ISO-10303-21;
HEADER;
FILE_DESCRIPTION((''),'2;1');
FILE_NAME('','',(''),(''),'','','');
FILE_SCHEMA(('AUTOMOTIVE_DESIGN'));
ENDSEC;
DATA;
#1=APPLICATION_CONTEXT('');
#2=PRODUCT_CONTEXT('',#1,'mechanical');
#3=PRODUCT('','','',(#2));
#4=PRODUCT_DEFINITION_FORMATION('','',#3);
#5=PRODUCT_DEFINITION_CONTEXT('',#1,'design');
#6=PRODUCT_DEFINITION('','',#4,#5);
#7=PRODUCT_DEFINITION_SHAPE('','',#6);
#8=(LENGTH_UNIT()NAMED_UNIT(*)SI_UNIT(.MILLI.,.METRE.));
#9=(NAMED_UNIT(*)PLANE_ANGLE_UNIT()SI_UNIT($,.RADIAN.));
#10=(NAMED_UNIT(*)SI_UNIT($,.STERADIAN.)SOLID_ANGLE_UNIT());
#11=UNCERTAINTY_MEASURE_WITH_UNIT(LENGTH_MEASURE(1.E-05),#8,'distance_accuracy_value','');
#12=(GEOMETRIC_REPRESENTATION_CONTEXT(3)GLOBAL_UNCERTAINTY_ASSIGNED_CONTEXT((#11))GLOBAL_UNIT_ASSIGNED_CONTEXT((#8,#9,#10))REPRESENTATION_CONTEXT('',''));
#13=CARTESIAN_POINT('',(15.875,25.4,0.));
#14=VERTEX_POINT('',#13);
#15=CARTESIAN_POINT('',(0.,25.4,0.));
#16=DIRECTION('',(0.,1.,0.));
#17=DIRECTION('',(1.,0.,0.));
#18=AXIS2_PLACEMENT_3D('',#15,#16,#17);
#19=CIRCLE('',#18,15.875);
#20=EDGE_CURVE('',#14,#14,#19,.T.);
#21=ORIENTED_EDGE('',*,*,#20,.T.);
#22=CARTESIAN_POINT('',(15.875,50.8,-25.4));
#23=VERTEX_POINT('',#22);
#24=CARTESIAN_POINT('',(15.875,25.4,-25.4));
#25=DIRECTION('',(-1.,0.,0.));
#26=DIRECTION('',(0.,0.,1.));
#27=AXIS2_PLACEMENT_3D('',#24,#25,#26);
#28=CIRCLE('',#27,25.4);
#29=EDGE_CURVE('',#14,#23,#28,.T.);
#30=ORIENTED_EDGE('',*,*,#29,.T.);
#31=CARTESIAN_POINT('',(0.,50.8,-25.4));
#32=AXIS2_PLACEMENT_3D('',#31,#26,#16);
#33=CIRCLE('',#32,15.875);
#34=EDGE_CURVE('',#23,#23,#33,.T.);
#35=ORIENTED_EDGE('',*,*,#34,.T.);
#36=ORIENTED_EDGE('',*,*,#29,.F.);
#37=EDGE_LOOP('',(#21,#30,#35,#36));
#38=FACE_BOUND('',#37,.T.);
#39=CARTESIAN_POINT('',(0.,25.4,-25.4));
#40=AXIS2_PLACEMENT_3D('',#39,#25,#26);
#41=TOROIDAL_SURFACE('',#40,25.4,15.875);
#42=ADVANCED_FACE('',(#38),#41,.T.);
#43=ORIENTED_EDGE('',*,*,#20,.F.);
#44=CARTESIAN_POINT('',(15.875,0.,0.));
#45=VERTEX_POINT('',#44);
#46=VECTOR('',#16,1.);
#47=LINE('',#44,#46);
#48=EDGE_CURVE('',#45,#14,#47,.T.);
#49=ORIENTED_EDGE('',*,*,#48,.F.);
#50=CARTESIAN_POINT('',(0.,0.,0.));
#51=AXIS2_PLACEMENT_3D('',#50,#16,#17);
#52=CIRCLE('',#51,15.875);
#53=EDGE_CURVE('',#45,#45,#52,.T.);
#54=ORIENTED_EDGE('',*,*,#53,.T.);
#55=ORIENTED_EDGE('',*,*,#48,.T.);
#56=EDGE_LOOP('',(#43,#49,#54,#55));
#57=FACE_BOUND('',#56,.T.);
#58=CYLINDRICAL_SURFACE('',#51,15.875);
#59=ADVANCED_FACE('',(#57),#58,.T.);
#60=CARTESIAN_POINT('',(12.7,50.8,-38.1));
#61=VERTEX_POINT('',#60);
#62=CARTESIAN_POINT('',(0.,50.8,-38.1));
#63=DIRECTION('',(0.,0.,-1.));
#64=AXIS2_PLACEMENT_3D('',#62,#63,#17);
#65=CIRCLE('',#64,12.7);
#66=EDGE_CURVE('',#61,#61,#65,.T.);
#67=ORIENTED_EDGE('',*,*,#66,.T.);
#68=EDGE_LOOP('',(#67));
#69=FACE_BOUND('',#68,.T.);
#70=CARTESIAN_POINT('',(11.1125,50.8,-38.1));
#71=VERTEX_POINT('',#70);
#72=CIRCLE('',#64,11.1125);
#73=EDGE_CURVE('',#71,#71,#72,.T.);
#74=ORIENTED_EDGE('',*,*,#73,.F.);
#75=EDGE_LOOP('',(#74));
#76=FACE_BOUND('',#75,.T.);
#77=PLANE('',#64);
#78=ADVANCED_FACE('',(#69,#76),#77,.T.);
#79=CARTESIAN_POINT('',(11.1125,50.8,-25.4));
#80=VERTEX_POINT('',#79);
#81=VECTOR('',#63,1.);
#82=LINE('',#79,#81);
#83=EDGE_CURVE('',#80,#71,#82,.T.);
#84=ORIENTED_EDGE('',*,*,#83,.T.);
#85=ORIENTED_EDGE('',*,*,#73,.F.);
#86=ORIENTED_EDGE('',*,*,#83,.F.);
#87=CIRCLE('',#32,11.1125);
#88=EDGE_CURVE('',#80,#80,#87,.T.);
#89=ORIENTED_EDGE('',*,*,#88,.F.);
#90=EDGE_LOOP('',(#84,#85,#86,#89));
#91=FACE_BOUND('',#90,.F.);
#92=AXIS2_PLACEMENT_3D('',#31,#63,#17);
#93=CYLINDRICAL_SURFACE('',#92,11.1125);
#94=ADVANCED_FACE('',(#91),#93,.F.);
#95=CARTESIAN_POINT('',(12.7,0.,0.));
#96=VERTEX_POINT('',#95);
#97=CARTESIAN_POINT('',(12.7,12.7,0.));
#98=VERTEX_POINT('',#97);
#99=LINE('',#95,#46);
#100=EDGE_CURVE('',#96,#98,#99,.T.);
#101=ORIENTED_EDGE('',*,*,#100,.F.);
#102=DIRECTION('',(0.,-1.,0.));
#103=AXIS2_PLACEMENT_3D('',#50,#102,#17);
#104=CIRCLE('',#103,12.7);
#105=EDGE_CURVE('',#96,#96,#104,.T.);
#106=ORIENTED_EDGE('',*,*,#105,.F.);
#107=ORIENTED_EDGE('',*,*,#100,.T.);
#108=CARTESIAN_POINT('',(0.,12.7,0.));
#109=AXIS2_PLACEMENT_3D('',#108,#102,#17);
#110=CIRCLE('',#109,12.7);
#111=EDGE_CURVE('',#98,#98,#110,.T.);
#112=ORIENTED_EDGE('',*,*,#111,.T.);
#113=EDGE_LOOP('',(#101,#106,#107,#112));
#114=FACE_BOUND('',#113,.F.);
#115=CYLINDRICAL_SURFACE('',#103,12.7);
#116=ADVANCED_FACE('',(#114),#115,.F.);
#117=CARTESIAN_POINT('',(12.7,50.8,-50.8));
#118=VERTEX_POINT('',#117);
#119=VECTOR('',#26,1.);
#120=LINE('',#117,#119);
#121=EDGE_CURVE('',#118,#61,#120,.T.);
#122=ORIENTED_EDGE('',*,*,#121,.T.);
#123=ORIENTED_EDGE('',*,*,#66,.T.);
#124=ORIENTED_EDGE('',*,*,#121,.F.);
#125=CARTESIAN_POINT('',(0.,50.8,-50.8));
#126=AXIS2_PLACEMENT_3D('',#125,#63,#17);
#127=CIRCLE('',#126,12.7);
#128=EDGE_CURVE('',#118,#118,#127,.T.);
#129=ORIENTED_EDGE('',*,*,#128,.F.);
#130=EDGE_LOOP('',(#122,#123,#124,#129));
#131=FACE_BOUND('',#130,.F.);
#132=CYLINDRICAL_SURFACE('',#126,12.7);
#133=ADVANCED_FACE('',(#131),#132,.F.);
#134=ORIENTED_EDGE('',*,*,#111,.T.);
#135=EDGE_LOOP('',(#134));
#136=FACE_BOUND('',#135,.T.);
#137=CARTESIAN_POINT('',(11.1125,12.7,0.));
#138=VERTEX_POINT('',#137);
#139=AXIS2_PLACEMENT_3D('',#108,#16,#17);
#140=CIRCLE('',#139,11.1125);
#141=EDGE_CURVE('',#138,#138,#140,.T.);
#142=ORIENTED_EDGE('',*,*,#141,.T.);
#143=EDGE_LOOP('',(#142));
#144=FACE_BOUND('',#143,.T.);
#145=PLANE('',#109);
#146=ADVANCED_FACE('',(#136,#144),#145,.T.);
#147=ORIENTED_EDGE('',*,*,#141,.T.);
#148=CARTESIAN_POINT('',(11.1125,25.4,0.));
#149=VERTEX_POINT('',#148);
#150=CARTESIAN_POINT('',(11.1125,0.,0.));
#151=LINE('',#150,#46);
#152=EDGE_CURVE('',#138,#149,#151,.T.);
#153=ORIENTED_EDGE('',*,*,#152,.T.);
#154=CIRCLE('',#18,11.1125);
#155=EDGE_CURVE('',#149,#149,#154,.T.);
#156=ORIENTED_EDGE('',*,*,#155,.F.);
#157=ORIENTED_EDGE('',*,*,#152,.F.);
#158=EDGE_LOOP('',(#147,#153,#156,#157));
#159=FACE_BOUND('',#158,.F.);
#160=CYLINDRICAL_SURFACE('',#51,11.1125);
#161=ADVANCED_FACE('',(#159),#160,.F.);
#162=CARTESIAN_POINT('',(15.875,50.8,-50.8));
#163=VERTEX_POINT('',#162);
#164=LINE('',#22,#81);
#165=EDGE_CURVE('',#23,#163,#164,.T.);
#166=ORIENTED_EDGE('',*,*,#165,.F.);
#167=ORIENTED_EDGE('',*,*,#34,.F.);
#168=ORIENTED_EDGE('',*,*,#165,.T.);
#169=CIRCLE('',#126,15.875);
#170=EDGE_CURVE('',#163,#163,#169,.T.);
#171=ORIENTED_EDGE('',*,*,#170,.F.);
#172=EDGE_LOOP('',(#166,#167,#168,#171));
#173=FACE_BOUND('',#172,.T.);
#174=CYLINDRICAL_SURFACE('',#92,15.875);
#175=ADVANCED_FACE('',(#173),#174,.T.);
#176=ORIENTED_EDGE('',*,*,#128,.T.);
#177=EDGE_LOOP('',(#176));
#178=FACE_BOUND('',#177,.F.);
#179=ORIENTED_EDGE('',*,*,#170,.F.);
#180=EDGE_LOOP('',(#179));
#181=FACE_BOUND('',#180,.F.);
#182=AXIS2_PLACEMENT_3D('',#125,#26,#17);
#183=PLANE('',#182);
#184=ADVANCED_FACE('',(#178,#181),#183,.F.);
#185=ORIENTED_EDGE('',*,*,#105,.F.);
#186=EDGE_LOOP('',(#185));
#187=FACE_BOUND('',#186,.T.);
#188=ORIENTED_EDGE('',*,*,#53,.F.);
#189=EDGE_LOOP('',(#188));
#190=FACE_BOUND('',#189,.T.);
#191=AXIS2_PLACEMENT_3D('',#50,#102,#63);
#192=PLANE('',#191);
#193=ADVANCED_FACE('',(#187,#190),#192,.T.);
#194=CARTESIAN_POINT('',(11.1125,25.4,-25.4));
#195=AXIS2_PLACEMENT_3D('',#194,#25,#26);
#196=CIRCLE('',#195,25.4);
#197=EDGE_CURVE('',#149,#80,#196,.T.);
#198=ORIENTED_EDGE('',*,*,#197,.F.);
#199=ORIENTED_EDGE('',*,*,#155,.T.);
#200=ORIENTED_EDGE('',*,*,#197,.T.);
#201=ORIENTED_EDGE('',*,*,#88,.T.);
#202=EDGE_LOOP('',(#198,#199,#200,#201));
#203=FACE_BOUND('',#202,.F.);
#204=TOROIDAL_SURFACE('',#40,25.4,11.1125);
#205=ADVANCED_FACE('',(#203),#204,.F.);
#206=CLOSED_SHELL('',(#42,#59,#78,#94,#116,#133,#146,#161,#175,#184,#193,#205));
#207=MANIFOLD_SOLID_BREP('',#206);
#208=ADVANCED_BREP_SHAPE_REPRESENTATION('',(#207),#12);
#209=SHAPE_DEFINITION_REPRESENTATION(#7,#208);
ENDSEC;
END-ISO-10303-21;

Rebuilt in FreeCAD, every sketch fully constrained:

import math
import FreeCAD as App
import Part
import Sketcher
from FreeCAD import Vector
Q = App.Units.Quantity

doc = App.newDocument("Part")
body = doc.addObject("PartDesign::Body", "Body")

sketch1 = body.newObject("Sketcher::SketchObject", "Sketch")
sketch1.AttachmentSupport = (doc.getObject("XZ_Plane"), [""])
sketch1.MapMode = "FlatFace"
sketch1.addGeometry([
    Part.Circle(Vector(0, 0, 0), Vector(0, 0, 1), 16),
    Part.Circle(Vector(0, 0, 0), Vector(0, 0, 1), 11),
], False)
sketch1.addConstraint([
    Sketcher.Constraint("Coincident", 0, 3, -1, 1),
    Sketcher.Constraint("Coincident", 1, 3, -1, 1),
    Sketcher.Constraint("Diameter", 0, Q("1.25 in")),
    Sketcher.Constraint("Diameter", 1, Q("0.875 in")),
])

sketch2 = body.newObject("Sketcher::SketchObject", "Sketch001")
sketch2.AttachmentSupport = (doc.getObject("YZ_Plane"), [""])
sketch2.MapMode = "FlatFace"
sketch2.addGeometry([
    Part.LineSegment(Vector(0, 0, 0), Vector(25, 0, 0)),
    Part.ArcOfCircle(Part.Circle(Vector(25, -25, 0), Vector(0, 0, 1), 25), math.radians(0), math.radians(90)),
    Part.LineSegment(Vector(51, -25, 0), Vector(51, -51, 0)),
], False)
sketch2.addConstraint([
    Sketcher.Constraint("Tangent", 0, 2, 1, 2),
    Sketcher.Constraint("Tangent", 1, 1, 2, 1),
    Sketcher.Constraint("Horizontal", 0),
    Sketcher.Constraint("Vertical", 2),
    Sketcher.Constraint("Coincident", 0, 1, -1, 1),
    Sketcher.Constraint("Equal", 0, 2),
    Sketcher.Constraint("Radius", 1, Q("1 in")),
    Sketcher.Constraint("DistanceX", 0, 1, 0, 2, Q("1 in")),
])
doc.recompute()

additivepipe = body.newObject("PartDesign::AdditivePipe", "AdditivePipe")
additivepipe.Profile = sketch1
additivepipe.Spine = (sketch2, ["Edge1", "Edge2", "Edge3"])

sketch3 = body.newObject("Sketcher::SketchObject", "Sketch002")
sketch3.AttachmentSupport = (doc.getObject("XZ_Plane"), [""])
sketch3.MapMode = "FlatFace"
sketch3.addGeometry(Part.Circle(Vector(0, 0, 0), Vector(0, 0, 1), 13), False)
sketch3.addConstraint([
    Sketcher.Constraint("Coincident", 0, 3, -1, 1),
    Sketcher.Constraint("Diameter", 0, Q("1 in")),
])
pocket1 = body.newObject("PartDesign::Pocket", "Pocket")
pocket1.Profile = sketch3
pocket1.Length = Q("0.5 in")

sketch4 = body.newObject("Sketcher::SketchObject", "Sketch003")
sketch4.AttachmentSupport = (doc.getObject("XY_Plane"), [""])
sketch4.MapMode = "FlatFace"
sketch4.AttachmentOffset = App.Placement(Vector(0, 0, -2 * 25.4), App.Rotation())
sketch4.addGeometry([
    Part.Circle(Vector(0, 51, 0), Vector(0, 0, 1), 13),
    Part.Circle(Vector(0, 51, 0), Vector(0, 0, 1), 11),
], False)
sketch4.addConstraint([
    Sketcher.Constraint("Coincident", 1, 3, 0, 3),
    Sketcher.Constraint("PointOnObject", 0, 3, -2),
    Sketcher.Constraint("Diameter", 0, Q("1 in")),
    Sketcher.Constraint("Diameter", 1, Q("0.875 in")),
    Sketcher.Constraint("DistanceY", -1, 1, 0, 3, Q("2 in")),
])
pocket2 = body.newObject("PartDesign::Pocket", "Pocket001")
pocket2.Profile = sketch4
pocket2.Length = Q("0.5 in")
pocket2.Reversed = True

doc.recompute()
